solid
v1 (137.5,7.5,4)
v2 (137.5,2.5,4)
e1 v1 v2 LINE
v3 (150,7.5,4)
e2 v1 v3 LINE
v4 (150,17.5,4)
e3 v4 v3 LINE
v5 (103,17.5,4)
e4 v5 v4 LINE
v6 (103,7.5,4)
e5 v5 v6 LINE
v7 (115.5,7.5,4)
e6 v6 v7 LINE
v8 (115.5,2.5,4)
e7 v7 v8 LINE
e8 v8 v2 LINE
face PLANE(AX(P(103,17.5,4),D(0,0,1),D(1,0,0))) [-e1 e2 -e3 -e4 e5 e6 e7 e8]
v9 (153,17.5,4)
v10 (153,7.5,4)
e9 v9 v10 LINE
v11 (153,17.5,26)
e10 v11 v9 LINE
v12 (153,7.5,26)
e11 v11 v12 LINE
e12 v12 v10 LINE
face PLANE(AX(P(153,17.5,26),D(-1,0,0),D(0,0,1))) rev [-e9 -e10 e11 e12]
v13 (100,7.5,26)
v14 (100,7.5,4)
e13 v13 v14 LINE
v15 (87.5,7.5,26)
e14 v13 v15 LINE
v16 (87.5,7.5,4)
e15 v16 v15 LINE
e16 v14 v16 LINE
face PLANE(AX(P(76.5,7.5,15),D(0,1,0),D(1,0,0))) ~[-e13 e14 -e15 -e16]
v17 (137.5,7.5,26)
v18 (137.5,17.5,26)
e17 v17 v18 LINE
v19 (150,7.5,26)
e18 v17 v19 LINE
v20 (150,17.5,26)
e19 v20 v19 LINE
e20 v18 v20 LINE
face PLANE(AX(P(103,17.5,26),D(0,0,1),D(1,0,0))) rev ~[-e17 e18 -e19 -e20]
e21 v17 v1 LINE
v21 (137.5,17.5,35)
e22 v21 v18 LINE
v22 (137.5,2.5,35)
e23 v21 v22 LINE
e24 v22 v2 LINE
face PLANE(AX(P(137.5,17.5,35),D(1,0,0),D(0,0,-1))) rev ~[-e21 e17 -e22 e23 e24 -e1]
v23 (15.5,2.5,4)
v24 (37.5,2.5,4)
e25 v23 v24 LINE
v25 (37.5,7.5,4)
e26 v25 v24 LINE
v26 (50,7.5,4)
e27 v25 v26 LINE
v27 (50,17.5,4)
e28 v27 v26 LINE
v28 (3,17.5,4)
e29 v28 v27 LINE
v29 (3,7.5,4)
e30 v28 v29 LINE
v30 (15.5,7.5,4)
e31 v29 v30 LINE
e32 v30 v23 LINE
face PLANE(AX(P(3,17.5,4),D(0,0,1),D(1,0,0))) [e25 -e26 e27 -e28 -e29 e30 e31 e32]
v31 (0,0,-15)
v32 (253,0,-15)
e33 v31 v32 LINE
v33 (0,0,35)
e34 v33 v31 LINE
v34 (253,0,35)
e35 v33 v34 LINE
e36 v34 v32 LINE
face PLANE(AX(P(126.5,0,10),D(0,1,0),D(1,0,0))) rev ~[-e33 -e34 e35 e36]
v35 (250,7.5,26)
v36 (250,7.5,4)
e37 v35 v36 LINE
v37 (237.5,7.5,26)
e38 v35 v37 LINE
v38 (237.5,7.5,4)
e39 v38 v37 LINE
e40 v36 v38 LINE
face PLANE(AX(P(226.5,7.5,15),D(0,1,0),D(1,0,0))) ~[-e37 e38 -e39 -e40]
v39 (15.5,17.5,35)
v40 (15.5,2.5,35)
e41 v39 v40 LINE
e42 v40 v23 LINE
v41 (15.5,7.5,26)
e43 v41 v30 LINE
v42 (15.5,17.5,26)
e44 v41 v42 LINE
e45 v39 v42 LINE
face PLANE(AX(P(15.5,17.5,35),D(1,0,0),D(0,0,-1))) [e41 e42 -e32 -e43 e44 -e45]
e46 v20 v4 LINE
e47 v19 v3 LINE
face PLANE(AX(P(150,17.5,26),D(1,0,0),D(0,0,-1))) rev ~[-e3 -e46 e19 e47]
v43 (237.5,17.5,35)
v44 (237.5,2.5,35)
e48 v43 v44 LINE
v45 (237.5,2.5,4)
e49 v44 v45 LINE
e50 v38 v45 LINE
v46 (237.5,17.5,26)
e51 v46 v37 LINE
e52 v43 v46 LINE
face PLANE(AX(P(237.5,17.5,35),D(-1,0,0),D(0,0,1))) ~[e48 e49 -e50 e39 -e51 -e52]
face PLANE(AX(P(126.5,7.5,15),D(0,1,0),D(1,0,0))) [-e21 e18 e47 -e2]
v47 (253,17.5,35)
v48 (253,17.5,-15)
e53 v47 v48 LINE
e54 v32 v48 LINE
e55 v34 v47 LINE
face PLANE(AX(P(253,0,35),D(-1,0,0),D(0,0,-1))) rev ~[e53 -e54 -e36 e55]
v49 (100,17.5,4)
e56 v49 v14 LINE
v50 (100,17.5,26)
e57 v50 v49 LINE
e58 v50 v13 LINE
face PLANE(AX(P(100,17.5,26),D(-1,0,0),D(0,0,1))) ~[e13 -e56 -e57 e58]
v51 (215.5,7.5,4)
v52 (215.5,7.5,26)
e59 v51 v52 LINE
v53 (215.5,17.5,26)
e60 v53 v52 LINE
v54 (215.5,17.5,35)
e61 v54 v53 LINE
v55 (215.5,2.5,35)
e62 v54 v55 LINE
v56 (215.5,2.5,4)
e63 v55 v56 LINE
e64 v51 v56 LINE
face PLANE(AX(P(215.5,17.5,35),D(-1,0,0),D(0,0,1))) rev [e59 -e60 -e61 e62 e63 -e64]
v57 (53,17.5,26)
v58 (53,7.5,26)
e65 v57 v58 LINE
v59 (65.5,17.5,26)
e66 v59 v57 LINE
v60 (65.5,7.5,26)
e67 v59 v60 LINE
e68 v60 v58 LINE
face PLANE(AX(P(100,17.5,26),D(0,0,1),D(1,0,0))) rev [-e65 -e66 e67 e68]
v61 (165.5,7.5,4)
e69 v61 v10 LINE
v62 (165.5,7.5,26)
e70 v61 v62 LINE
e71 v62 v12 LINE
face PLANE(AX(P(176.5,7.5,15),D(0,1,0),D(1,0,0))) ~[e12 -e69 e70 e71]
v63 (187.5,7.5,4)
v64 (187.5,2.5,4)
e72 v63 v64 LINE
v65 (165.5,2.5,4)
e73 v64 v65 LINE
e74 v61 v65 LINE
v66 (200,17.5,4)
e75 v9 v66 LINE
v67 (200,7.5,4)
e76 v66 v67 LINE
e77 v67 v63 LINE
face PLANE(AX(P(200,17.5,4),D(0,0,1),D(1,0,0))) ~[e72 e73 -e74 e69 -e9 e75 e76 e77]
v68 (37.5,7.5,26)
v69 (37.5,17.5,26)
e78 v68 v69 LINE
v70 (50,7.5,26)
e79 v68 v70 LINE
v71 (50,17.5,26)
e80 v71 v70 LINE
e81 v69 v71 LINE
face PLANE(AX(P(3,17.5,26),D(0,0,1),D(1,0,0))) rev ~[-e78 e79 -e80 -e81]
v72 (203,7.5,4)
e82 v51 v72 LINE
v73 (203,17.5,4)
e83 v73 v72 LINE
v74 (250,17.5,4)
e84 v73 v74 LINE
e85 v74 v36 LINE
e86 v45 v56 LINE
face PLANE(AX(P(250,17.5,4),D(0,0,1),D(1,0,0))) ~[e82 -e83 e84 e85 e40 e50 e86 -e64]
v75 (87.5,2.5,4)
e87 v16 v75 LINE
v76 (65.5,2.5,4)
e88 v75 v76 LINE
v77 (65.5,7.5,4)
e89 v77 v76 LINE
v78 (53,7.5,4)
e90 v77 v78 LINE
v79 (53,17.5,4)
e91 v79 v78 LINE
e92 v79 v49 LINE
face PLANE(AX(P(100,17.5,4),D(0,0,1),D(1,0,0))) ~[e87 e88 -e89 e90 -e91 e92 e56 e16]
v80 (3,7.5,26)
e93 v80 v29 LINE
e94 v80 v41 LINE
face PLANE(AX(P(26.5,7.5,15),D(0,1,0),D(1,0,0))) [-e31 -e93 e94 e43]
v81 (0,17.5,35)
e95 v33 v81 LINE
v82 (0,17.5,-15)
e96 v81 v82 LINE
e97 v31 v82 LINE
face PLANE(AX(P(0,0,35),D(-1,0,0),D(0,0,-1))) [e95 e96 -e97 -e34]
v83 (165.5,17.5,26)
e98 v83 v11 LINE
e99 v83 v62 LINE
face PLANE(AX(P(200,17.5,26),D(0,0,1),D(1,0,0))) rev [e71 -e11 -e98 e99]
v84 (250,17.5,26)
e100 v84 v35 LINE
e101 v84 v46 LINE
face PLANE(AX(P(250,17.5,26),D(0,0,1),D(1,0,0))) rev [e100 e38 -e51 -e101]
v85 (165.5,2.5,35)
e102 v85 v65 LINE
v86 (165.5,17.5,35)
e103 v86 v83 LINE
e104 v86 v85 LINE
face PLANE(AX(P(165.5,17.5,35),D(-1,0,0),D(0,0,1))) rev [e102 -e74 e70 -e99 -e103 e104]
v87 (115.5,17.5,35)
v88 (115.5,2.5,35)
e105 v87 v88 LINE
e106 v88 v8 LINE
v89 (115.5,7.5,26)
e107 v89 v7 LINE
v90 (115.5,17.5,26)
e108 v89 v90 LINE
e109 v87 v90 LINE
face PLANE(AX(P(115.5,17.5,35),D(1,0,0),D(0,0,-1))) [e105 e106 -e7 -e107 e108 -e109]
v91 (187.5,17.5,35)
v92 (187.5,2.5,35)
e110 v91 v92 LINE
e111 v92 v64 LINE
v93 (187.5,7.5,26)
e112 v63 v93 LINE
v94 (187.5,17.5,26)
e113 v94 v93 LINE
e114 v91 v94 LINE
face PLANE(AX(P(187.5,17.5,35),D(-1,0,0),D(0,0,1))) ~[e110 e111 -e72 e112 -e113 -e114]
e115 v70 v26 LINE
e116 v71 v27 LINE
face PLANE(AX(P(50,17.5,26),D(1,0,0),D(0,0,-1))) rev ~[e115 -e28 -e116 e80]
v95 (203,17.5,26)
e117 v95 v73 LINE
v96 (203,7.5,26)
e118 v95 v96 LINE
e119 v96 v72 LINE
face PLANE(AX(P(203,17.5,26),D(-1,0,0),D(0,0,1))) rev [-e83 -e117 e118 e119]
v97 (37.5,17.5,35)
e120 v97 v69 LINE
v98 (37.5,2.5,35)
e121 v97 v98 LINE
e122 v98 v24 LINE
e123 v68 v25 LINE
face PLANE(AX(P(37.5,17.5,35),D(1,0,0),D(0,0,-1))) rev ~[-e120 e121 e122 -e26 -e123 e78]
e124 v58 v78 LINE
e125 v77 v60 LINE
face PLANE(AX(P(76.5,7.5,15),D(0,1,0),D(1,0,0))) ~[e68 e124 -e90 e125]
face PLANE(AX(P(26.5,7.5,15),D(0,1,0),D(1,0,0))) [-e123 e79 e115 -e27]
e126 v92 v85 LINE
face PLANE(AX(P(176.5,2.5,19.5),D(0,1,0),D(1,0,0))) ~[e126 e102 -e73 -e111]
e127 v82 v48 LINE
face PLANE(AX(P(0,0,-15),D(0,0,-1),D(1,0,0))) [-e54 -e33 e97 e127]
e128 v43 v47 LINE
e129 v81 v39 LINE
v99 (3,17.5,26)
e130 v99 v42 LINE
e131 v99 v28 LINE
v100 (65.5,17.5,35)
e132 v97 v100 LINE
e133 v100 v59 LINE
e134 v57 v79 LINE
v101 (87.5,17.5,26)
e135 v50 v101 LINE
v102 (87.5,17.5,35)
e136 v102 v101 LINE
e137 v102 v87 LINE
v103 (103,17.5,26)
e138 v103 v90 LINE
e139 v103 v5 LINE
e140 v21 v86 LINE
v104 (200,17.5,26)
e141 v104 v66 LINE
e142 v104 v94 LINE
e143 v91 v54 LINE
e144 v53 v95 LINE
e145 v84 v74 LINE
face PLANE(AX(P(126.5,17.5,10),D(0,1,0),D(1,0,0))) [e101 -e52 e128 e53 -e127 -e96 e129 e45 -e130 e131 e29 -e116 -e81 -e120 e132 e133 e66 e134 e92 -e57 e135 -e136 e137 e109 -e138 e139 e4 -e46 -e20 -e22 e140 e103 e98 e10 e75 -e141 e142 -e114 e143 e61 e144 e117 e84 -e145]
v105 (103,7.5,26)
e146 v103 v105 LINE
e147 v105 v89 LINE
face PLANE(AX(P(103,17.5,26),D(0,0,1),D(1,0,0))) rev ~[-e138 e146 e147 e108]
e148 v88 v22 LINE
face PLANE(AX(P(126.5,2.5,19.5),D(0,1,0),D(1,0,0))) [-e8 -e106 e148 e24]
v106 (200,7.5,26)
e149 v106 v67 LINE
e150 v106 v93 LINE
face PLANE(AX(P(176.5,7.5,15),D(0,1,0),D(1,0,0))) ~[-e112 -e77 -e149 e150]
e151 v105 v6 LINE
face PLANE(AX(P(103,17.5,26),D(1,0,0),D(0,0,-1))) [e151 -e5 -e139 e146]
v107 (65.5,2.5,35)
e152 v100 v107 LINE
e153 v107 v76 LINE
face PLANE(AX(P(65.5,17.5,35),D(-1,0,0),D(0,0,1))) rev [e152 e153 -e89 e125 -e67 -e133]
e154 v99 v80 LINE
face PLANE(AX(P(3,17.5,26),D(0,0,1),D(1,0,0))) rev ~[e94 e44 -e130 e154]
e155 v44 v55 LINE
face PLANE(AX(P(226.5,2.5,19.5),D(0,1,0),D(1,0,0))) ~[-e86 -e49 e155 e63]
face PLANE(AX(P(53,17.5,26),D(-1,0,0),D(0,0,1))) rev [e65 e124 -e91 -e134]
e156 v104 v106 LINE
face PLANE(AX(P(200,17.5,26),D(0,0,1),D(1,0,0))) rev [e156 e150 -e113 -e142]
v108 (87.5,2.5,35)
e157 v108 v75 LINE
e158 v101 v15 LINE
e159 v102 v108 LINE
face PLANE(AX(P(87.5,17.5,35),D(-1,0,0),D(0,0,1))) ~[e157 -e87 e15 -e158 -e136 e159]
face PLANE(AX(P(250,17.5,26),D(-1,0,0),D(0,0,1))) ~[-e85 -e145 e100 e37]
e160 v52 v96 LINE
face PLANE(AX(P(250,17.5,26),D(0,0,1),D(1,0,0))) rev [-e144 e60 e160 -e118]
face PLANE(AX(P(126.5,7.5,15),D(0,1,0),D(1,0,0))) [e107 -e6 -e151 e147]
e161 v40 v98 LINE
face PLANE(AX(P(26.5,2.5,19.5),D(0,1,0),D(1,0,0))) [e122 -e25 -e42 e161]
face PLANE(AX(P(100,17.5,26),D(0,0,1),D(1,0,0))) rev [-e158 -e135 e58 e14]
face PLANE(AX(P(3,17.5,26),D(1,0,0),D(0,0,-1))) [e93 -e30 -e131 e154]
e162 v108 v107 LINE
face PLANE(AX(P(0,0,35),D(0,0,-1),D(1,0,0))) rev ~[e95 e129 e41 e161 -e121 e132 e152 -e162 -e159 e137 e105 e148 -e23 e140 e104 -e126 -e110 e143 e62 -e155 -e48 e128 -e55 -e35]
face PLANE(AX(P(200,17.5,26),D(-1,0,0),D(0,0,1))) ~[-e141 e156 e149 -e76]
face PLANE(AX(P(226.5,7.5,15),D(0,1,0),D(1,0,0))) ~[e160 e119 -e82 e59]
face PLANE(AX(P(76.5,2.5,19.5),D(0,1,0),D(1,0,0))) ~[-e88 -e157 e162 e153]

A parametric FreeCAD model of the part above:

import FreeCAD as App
import Part
import Sketcher

doc = App.newDocument("Part")
body = doc.addObject("PartDesign::Body", "Body")

sketch1 = body.newObject("Sketcher::SketchObject", "Sketch")
sketch1.AttachmentSupport = (doc.getObject("XZ_Plane"), [""])
sketch1.MapMode = "FlatFace"
sketch1.addGeometry(Part.LineSegment(App.Vector(0, -15, 0), App.Vector(0, 35, 0)), False)
sketch1.addGeometry(Part.LineSegment(App.Vector(0, 35, 0), App.Vector(253, 35, 0)), False)
sketch1.addGeometry(Part.LineSegment(App.Vector(253, 35, 0), App.Vector(253, -15, 0)), False)
sketch1.addGeometry(Part.LineSegment(App.Vector(253, -15, 0), App.Vector(0, -15, 0)), False)
sketch1.addConstraint(Sketcher.Constraint("Coincident", 0, 2, 1, 1))
sketch1.addConstraint(Sketcher.Constraint("Coincident", 1, 2, 2, 1))
sketch1.addConstraint(Sketcher.Constraint("Coincident", 2, 2, 3, 1))
sketch1.addConstraint(Sketcher.Constraint("Coincident", 3, 2, 0, 1))
sketch1.addConstraint(Sketcher.Constraint("Vertical", 0))
sketch1.addConstraint(Sketcher.Constraint("Horizontal", 1))
sketch1.addConstraint(Sketcher.Constraint("Vertical", 2))
sketch1.addConstraint(Sketcher.Constraint("Horizontal", 3))
sketch1.addConstraint(Sketcher.Constraint("PointOnObject", 0, 2, -2))
sketch1.addConstraint(Sketcher.Constraint("DistanceX", 1, 1, 1, 2, 253.0))
sketch1.addConstraint(Sketcher.Constraint("DistanceY", 0, 1, 0, 2, 50.0))
sketch1.addConstraint(Sketcher.Constraint("DistanceY", -1, 1, 0, 2, 35.0))
pad1 = body.newObject("PartDesign::Pad", "Pad")
pad1.Profile = sketch1
pad1.Length = 17.5
pad1.Reversed = True

sketch2 = body.newObject("Sketcher::SketchObject", "Sketch001")
sketch2.AttachmentSupport = (doc.getObject("XZ_Plane"), [""])
sketch2.MapMode = "FlatFace"
sketch2.AttachmentOffset = App.Placement(App.Vector(0, 0, -17.5), App.Rotation())
sketch2.addGeometry(Part.LineSegment(App.Vector(3, 4, 0), App.Vector(3, 26, 0)), False)
sketch2.addGeometry(Part.LineSegment(App.Vector(3, 26, 0), App.Vector(50, 26, 0)), False)
sketch2.addGeometry(Part.LineSegment(App.Vector(50, 26, 0), App.Vector(50, 4, 0)), False)
sketch2.addGeometry(Part.LineSegment(App.Vector(50, 4, 0), App.Vector(3, 4, 0)), False)
sketch2.addConstraint(Sketcher.Constraint("Coincident", 0, 2, 1, 1))
sketch2.addConstraint(Sketcher.Constraint("Coincident", 1, 2, 2, 1))
sketch2.addConstraint(Sketcher.Constraint("Coincident", 2, 2, 3, 1))
sketch2.addConstraint(Sketcher.Constraint("Coincident", 3, 2, 0, 1))
sketch2.addConstraint(Sketcher.Constraint("Vertical", 0))
sketch2.addConstraint(Sketcher.Constraint("Horizontal", 1))
sketch2.addConstraint(Sketcher.Constraint("Vertical", 2))
sketch2.addConstraint(Sketcher.Constraint("Horizontal", 3))
sketch2.addConstraint(Sketcher.Constraint("DistanceX", 1, 1, 1, 2, 47.0))
sketch2.addConstraint(Sketcher.Constraint("DistanceY", 0, 1, 0, 2, 22.0))
sketch2.addConstraint(Sketcher.Constraint("DistanceX", -1, 1, 0, 2, 3.0))
sketch2.addConstraint(Sketcher.Constraint("DistanceY", -1, 1, 0, 2, 26.0))
pocket1 = body.newObject("PartDesign::Pocket", "Pocket")
pocket1.Profile = sketch2
pocket1.Length = 10
pocket1.Reversed = True

sketch3 = body.newObject("Sketcher::SketchObject", "Sketch002")
sketch3.AttachmentSupport = (doc.getObject("XZ_Plane"), [""])
sketch3.MapMode = "FlatFace"
sketch3.AttachmentOffset = App.Placement(App.Vector(0, 0, -17.5), App.Rotation())
sketch3.addGeometry(Part.LineSegment(App.Vector(16, 4, 0), App.Vector(16, 35, 0)), False)
sketch3.addGeometry(Part.LineSegment(App.Vector(16, 35, 0), App.Vector(38, 35, 0)), False)
sketch3.addGeometry(Part.LineSegment(App.Vector(38, 35, 0), App.Vector(38, 4, 0)), False)
sketch3.addGeometry(Part.LineSegment(App.Vector(38, 4, 0), App.Vector(16, 4, 0)), False)
sketch3.addConstraint(Sketcher.Constraint("Coincident", 0, 2, 1, 1))
sketch3.addConstraint(Sketcher.Constraint("Coincident", 1, 2, 2, 1))
sketch3.addConstraint(Sketcher.Constraint("Coincident", 2, 2, 3, 1))
sketch3.addConstraint(Sketcher.Constraint("Coincident", 3, 2, 0, 1))
sketch3.addConstraint(Sketcher.Constraint("Vertical", 0))
sketch3.addConstraint(Sketcher.Constraint("Horizontal", 1))
sketch3.addConstraint(Sketcher.Constraint("Vertical", 2))
sketch3.addConstraint(Sketcher.Constraint("Horizontal", 3))
sketch3.addConstraint(Sketcher.Constraint("DistanceX", 1, 1, 1, 2, 22.0))
sketch3.addConstraint(Sketcher.Constraint("DistanceY", 0, 1, 0, 2, 31.0))
sketch3.addConstraint(Sketcher.Constraint("DistanceY", -1, 1, 0, 2, 35.0))
sketch3.addConstraint(Sketcher.Constraint("DistanceX", -1, 1, 0, 2, 15.5))
pocket2 = body.newObject("PartDesign::Pocket", "Pocket001")
pocket2.Profile = sketch3
pocket2.Length = 15
pocket2.Reversed = True
doc.recompute()

datumplane = body.newObject("PartDesign::Plane", "DatumPlane")
datumplane.AttachmentSupport = (doc.getObject("YZ_Plane"), [""])
datumplane.MapMode = "FlatFace"
datumplane.AttachmentOffset = App.Placement(App.Vector(0, 0, 51.5), App.Rotation())
mirrored = body.newObject("PartDesign::Mirrored", "Mirrored")
mirrored.Originals = [pocket1, pocket2]
mirrored.MirrorPlane = (datumplane, [""])
body.Tip = mirrored
doc.recompute()

datumplane2 = body.newObject("PartDesign::Plane", "DatumPlane001")
datumplane2.AttachmentSupport = (doc.getObject("YZ_Plane"), [""])
datumplane2.MapMode = "FlatFace"
datumplane2.AttachmentOffset = App.Placement(App.Vector(0, 0, 101.5), App.Rotation())
mirrored2 = body.newObject("PartDesign::Mirrored", "Mirrored001")
mirrored2.Originals = [pocket1, pocket2]
mirrored2.MirrorPlane = (datumplane2, [""])
body.Tip = mirrored2

sketch4 = body.newObject("Sketcher::SketchObject", "Sketch003")
sketch4.AttachmentSupport = (doc.getObject("XZ_Plane"), [""])
sketch4.MapMode = "FlatFace"
sketch4.AttachmentOffset = App.Placement(App.Vector(0, 0, -17.5), App.Rotation())
sketch4.addGeometry(Part.LineSegment(App.Vector(103, 4, 0), App.Vector(103, 26, 0)), False)
sketch4.addGeometry(Part.LineSegment(App.Vector(103, 26, 0), App.Vector(150, 26, 0)), False)
sketch4.addGeometry(Part.LineSegment(App.Vector(150, 26, 0), App.Vector(150, 4, 0)), False)
sketch4.addGeometry(Part.LineSegment(App.Vector(150, 4, 0), App.Vector(103, 4, 0)), False)
sketch4.addConstraint(Sketcher.Constraint("Coincident", 0, 2, 1, 1))
sketch4.addConstraint(Sketcher.Constraint("Coincident", 1, 2, 2, 1))
sketch4.addConstraint(Sketcher.Constraint("Coincident", 2, 2, 3, 1))
sketch4.addConstraint(Sketcher.Constraint("Coincident", 3, 2, 0, 1))
sketch4.addConstraint(Sketcher.Constraint("Vertical", 0))
sketch4.addConstraint(Sketcher.Constraint("Horizontal", 1))
sketch4.addConstraint(Sketcher.Constraint("Vertical", 2))
sketch4.addConstraint(Sketcher.Constraint("Horizontal", 3))
sketch4.addConstraint(Sketcher.Constraint("DistanceX", 1, 1, 1, 2, 47.0))
sketch4.addConstraint(Sketcher.Constraint("DistanceY", 0, 1, 0, 2, 22.0))
sketch4.addConstraint(Sketcher.Constraint("DistanceX", -1, 1, 0, 2, 103.0))
sketch4.addConstraint(Sketcher.Constraint("DistanceY", -1, 1, 0, 2, 26.0))
pocket3 = body.newObject("PartDesign::Pocket", "Pocket002")
pocket3.Profile = sketch4
pocket3.Length = 10
pocket3.Reversed = True

sketch5 = body.newObject("Sketcher::SketchObject", "Sketch004")
sketch5.AttachmentSupport = (doc.getObject("XZ_Plane"), [""])
sketch5.MapMode = "FlatFace"
sketch5.AttachmentOffset = App.Placement(App.Vector(0, 0, -17.5), App.Rotation())
sketch5.addGeometry(Part.LineSegment(App.Vector(116, 4, 0), App.Vector(116, 35, 0)), False)
sketch5.addGeometry(Part.LineSegment(App.Vector(116, 35, 0), App.Vector(138, 35, 0)), False)
sketch5.addGeometry(Part.LineSegment(App.Vector(138, 35, 0), App.Vector(138, 4, 0)), False)
sketch5.addGeometry(Part.LineSegment(App.Vector(138, 4, 0), App.Vector(116, 4, 0)), False)
sketch5.addConstraint(Sketcher.Constraint("Coincident", 0, 2, 1, 1))
sketch5.addConstraint(Sketcher.Constraint("Coincident", 1, 2, 2, 1))
sketch5.addConstraint(Sketcher.Constraint("Coincident", 2, 2, 3, 1))
sketch5.addConstraint(Sketcher.Constraint("Coincident", 3, 2, 0, 1))
sketch5.addConstraint(Sketcher.Constraint("Vertical", 0))
sketch5.addConstraint(Sketcher.Constraint("Horizontal", 1))
sketch5.addConstraint(Sketcher.Constraint("Vertical", 2))
sketch5.addConstraint(Sketcher.Constraint("Horizontal", 3))
sketch5.addConstraint(Sketcher.Constraint("DistanceX", 1, 1, 1, 2, 22.0))
sketch5.addConstraint(Sketcher.Constraint("DistanceY", 0, 1, 0, 2, 31.0))
sketch5.addConstraint(Sketcher.Constraint("DistanceY", -1, 1, 0, 2, 35.0))
sketch5.addConstraint(Sketcher.Constraint("DistanceX", -1, 1, 0, 2, 115.5))
pocket4 = body.newObject("PartDesign::Pocket", "Pocket003")
pocket4.Profile = sketch5
pocket4.Length = 15
pocket4.Reversed = True
doc.recompute()

datumplane3 = body.newObject("PartDesign::Plane", "DatumPlane002")
datumplane3.AttachmentSupport = (doc.getObject("YZ_Plane"), [""])
datumplane3.MapMode = "FlatFace"
datumplane3.AttachmentOffset = App.Placement(App.Vector(0, 0, 126.5), App.Rotation())
mirrored3 = body.newObject("PartDesign::Mirrored", "Mirrored002")
mirrored3.Originals = [pocket1, pocket2]
mirrored3.MirrorPlane = (datumplane3, [""])
body.Tip = mirrored3

doc.recompute()
